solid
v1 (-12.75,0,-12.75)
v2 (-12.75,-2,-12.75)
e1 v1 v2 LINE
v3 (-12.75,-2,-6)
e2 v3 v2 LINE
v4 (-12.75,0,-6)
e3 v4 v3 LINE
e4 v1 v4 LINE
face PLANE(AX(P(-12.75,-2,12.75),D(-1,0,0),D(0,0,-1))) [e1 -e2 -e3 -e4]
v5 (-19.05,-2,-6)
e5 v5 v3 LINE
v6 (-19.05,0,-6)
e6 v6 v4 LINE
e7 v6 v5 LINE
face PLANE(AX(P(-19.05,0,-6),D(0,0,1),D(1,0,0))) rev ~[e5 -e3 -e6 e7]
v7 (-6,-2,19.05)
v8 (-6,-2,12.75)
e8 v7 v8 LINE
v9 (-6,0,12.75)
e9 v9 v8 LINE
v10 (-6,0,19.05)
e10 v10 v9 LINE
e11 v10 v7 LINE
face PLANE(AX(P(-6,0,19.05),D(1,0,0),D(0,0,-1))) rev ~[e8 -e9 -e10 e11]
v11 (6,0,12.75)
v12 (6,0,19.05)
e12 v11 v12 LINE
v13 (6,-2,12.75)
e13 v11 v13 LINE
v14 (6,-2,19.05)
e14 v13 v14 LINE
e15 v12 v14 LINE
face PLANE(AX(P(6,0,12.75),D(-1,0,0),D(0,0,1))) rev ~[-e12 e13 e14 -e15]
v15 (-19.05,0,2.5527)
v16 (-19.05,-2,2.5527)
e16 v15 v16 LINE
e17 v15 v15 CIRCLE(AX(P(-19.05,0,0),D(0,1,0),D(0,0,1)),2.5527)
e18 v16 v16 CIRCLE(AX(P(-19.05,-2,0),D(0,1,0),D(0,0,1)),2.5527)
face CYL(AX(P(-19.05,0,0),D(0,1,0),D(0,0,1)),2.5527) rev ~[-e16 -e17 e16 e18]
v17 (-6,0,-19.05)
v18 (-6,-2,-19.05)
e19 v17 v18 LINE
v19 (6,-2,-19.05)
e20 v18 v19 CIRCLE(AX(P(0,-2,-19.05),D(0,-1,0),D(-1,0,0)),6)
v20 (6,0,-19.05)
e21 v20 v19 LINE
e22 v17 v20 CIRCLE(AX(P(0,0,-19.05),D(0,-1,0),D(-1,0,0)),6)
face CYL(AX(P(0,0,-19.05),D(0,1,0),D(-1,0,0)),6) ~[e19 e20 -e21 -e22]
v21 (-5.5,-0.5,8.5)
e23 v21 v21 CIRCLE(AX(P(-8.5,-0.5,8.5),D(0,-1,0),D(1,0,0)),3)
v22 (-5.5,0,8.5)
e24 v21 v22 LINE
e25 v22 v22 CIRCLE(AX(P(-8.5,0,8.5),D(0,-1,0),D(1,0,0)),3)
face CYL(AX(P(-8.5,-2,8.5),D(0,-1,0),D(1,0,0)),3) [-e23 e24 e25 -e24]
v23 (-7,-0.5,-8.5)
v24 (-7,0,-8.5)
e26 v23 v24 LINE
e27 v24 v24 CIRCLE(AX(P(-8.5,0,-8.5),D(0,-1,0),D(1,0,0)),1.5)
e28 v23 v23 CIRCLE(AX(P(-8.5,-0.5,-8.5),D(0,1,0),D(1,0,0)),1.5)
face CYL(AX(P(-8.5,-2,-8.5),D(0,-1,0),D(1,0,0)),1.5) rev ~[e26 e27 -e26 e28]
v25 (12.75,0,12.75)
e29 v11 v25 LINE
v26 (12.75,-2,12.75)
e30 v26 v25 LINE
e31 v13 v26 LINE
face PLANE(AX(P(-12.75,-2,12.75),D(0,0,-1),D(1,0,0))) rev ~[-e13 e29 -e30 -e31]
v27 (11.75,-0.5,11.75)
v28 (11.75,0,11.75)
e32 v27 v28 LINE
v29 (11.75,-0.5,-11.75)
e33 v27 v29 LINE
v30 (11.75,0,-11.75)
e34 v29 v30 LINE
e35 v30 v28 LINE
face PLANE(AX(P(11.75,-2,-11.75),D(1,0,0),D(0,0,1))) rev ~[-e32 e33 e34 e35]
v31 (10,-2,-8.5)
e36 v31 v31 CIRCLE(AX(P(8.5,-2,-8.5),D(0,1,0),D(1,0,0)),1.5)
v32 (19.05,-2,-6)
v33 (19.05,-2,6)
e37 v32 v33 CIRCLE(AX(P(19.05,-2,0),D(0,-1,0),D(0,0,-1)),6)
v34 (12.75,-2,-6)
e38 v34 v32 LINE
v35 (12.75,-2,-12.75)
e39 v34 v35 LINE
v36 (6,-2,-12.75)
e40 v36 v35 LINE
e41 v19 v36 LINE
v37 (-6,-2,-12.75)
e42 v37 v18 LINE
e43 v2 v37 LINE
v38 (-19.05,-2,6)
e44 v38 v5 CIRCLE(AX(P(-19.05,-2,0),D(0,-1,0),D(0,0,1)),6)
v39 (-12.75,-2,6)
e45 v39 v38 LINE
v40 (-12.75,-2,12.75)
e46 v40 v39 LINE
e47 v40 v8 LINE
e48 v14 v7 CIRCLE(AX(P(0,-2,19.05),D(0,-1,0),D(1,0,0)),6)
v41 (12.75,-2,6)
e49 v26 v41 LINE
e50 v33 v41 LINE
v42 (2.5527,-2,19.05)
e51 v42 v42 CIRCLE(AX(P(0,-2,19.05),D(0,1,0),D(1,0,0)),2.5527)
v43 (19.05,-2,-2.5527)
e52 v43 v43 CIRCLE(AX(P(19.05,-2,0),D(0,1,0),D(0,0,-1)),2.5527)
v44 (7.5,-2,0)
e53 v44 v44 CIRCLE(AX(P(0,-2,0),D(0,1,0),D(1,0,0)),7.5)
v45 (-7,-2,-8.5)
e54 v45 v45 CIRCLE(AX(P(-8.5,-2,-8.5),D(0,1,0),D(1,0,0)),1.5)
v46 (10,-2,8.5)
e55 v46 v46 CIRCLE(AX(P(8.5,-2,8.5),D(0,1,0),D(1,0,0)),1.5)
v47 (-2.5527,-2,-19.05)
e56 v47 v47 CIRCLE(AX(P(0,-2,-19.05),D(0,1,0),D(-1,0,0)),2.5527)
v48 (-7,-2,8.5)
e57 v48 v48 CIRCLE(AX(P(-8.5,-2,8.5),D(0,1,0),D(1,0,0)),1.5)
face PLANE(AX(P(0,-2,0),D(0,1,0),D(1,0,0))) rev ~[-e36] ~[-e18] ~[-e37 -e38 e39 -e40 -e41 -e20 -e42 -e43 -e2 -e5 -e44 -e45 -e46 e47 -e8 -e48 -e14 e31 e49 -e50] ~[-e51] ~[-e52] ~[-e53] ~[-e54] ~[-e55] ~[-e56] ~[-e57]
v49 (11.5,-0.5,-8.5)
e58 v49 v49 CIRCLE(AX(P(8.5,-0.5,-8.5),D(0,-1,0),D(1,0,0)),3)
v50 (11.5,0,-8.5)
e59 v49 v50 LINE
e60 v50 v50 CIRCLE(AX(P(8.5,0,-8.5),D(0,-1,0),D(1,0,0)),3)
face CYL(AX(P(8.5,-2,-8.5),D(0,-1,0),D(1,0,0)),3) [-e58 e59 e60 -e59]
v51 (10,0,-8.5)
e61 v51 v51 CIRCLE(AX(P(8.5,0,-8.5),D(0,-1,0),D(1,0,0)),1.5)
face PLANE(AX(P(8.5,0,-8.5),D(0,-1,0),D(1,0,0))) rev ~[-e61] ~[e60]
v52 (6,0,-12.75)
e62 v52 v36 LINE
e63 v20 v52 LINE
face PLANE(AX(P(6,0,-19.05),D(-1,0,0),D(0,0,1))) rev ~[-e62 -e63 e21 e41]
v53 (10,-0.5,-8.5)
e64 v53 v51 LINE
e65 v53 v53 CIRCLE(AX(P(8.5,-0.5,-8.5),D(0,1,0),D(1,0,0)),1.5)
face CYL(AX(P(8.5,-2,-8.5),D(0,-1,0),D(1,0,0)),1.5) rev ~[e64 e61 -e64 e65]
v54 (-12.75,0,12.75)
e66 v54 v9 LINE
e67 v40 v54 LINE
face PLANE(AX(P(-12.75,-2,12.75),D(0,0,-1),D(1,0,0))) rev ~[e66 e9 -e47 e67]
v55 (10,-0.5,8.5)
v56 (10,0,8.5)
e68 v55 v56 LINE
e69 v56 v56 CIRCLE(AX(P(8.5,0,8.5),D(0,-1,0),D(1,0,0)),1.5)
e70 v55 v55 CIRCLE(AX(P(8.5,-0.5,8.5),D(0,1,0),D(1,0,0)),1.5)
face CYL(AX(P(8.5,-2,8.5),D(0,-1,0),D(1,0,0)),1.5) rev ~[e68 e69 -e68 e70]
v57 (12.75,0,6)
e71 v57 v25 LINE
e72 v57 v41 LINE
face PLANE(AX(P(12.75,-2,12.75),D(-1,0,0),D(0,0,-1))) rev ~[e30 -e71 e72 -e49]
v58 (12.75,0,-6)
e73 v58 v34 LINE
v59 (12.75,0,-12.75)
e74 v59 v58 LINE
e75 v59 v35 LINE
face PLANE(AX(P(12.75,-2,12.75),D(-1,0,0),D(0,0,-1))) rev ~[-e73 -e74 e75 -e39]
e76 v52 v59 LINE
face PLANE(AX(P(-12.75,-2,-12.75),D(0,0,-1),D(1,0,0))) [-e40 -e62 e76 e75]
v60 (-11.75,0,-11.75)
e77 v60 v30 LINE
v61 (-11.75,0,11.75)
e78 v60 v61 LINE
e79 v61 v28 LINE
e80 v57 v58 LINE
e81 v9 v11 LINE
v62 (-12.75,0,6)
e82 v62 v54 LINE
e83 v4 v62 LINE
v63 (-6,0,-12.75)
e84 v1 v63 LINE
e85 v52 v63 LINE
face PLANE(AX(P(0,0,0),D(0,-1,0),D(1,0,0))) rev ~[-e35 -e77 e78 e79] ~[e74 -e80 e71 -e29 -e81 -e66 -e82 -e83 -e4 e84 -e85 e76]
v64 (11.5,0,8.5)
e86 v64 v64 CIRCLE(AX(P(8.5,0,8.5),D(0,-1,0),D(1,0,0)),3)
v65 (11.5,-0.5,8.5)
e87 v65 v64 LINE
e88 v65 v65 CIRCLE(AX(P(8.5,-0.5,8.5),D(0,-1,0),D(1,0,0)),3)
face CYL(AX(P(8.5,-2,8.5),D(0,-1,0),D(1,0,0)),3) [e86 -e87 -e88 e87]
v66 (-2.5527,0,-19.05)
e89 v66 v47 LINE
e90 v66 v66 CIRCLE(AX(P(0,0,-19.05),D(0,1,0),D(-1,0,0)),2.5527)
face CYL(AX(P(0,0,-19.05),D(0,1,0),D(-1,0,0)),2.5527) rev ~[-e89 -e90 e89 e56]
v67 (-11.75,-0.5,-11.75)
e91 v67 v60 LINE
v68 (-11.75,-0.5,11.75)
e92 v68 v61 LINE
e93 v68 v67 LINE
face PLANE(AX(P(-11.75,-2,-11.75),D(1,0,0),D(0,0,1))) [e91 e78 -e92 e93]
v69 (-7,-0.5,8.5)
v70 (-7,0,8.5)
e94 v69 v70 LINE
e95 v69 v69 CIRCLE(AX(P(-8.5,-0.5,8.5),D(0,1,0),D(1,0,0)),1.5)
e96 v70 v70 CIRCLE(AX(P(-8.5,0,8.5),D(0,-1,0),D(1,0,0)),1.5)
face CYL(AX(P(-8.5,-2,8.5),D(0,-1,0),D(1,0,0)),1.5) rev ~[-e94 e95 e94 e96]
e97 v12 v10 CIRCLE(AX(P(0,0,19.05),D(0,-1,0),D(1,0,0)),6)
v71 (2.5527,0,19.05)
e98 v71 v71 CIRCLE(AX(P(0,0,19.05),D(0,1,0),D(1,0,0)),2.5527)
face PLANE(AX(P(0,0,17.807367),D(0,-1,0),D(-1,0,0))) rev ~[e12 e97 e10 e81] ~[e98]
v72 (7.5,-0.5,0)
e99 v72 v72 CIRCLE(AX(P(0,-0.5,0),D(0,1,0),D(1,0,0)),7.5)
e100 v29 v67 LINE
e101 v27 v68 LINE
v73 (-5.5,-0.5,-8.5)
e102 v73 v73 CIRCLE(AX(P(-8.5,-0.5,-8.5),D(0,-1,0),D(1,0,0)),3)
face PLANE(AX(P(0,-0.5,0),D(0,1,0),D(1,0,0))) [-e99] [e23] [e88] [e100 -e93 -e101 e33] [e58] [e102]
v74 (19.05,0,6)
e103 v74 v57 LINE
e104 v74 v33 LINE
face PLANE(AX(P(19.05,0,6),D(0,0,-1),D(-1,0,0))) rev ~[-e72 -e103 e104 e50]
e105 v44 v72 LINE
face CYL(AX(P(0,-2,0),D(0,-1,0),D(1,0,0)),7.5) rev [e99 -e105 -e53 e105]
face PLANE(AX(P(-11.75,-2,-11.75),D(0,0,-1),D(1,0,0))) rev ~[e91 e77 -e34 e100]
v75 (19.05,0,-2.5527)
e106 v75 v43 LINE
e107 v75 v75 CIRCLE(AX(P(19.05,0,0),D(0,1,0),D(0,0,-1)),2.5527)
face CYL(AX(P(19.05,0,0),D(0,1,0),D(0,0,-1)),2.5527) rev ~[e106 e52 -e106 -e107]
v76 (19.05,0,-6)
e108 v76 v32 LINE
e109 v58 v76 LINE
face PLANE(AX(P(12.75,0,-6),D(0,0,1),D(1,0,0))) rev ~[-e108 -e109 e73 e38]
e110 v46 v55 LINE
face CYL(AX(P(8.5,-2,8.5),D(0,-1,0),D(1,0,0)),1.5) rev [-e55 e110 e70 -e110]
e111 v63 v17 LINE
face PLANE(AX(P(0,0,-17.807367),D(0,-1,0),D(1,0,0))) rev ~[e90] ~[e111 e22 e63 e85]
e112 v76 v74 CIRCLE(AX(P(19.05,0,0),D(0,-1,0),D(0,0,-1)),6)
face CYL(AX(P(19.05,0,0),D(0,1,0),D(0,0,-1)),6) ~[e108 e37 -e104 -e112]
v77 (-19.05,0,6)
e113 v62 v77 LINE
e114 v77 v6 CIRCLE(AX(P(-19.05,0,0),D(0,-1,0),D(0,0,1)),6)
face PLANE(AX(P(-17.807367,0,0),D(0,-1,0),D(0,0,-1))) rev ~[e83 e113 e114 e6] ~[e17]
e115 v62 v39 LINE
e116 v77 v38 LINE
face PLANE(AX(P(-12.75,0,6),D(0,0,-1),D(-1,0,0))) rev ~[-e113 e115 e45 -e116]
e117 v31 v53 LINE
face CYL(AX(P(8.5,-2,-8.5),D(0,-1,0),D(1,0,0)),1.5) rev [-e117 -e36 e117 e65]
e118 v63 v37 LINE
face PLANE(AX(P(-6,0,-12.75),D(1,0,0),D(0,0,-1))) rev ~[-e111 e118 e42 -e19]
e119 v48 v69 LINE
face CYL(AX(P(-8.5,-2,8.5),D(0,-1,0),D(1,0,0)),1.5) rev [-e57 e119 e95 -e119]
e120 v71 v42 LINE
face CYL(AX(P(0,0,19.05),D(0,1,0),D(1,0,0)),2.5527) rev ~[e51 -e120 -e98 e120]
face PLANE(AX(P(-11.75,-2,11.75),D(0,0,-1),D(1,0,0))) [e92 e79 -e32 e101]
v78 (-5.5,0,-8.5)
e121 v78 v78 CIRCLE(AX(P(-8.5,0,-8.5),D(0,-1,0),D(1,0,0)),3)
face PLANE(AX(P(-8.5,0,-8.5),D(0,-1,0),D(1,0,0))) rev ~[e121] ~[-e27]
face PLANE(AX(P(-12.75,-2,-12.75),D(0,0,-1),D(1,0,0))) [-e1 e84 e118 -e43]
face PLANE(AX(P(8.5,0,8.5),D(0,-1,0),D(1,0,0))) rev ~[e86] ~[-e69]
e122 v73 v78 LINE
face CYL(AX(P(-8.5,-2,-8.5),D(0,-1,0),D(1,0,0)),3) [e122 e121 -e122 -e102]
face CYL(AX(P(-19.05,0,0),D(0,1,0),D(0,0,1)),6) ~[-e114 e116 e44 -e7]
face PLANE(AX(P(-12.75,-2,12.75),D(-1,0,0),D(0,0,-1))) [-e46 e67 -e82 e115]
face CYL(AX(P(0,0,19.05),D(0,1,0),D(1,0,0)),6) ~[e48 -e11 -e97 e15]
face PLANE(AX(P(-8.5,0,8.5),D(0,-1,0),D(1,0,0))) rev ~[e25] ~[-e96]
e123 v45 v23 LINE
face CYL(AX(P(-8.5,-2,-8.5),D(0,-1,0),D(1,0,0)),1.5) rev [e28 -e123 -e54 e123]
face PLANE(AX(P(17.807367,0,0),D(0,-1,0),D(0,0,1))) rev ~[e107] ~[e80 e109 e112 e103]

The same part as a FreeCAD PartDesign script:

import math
import FreeCAD as App
import Part
import Sketcher


def edges_at(feature, points):
    """Names of the edges that pass closest to the given points."""
    edges = feature.Shape.Edges
    near = lambda p: min(range(len(edges)), key=lambda i: edges[i].distToShape(Part.Vertex(*p))[0])
    return sorted({f"Edge{near(p) + 1}" for p in points})

doc = App.newDocument("Part")
body = doc.addObject("PartDesign::Body", "Body")

sketch1 = doc.addObject("Sketcher::SketchObject", "Sketch")
body.addObject(sketch1)
sketch1.AttachmentSupport = (doc.XZ_Plane, [""])
sketch1.MapMode = "FlatFace"
sketch1.addGeometry([
    Part.LineSegment(App.Vector(-11.5, -11.5, 0), App.Vector(-11.5, 11.5, 0)),
    Part.LineSegment(App.Vector(-11.5, 11.5, 0), App.Vector(11.5, 11.5, 0)),
    Part.LineSegment(App.Vector(11.5, 11.5, 0), App.Vector(11.5, -11.5, 0)),
    Part.LineSegment(App.Vector(11.5, -11.5, 0), App.Vector(-11.5, -11.5, 0)),
    Part.Circle(App.Vector(-8.5, 8.5, 0), App.Vector(0, 0, 1), 1.5),
    Part.Circle(App.Vector(8.5, 8.5, 0), App.Vector(0, 0, 1), 1.5),
    Part.Circle(App.Vector(-8.5, -8.5, 0), App.Vector(0, 0, 1), 1.5),
    Part.Circle(App.Vector(8.5, -8.5, 0), App.Vector(0, 0, 1), 1.5),
], False)
sketch1.addConstraint([
    Sketcher.Constraint("Coincident", 0, 2, 1, 1),
    Sketcher.Constraint("Coincident", 1, 2, 2, 1),
    Sketcher.Constraint("Coincident", 2, 2, 3, 1),
    Sketcher.Constraint("Coincident", 3, 2, 0, 1),
    Sketcher.Constraint("Vertical", 0),
    Sketcher.Constraint("Horizontal", 1),
    Sketcher.Constraint("Vertical", 2),
    Sketcher.Constraint("Horizontal", 3),
    Sketcher.Constraint("Equal", 4, 5),
    Sketcher.Constraint("Equal", 5, 6),
    Sketcher.Constraint("Equal", 6, 7),
    Sketcher.Constraint("Symmetric", 5, 3, 6, 3, -1, 1),
    Sketcher.Constraint("Symmetric", 4, 3, 7, 3, -1, 1),
    Sketcher.Constraint("Symmetric", 0, 2, 2, 2, -1, 1),
    Sketcher.Constraint("Symmetric", 4, 3, 5, 3, -2),
    Sketcher.Constraint("Equal", 3, 0),
    Sketcher.Constraint("Diameter", 4, 3.0),
    Sketcher.Constraint("DistanceX", 1, 1, 1, 2, 23.0),
    Sketcher.Constraint("DistanceX", 4, 3, 5, 3, 17.0),
    Sketcher.Constraint("DistanceY", 6, 3, 4, 3, 17.0),
])
pad1 = doc.addObject("PartDesign::Pad", "Pad")
body.addObject(pad1)
pad1.Profile = sketch1
pad1.Length = 1
pad1.Reversed = True

sketch2 = doc.addObject("Sketcher::SketchObject", "Sketch001")
body.addObject(sketch2)
sketch2.AttachmentSupport = (doc.XZ_Plane, [""])
sketch2.MapMode = "FlatFace"
sketch2.AttachmentOffset = App.Placement(App.Vector(0, 0, -1), App.Rotation())
sketch2.addGeometry([
    Part.LineSegment(App.Vector(-3, -2, 0), App.Vector(-3, 2, 0)),
    Part.LineSegment(App.Vector(-3, 2, 0), App.Vector(3, 2, 0)),
    Part.LineSegment(App.Vector(3, 2, 0), App.Vector(3, -2, 0)),
    Part.LineSegment(App.Vector(3, -2, 0), App.Vector(-3, -2, 0)),
], False)
sketch2.addConstraint([
    Sketcher.Constraint("Coincident", 0, 2, 1, 1),
    Sketcher.Constraint("Coincident", 1, 2, 2, 1),
    Sketcher.Constraint("Coincident", 2, 2, 3, 1),
    Sketcher.Constraint("Coincident", 3, 2, 0, 1),
    Sketcher.Constraint("Vertical", 0),
    Sketcher.Constraint("Horizontal", 1),
    Sketcher.Constraint("Vertical", 2),
    Sketcher.Constraint("Horizontal", 3),
    Sketcher.Constraint("Symmetric", 0, 2, 2, 2, -1, 1),
    Sketcher.Constraint("DistanceX", 1, 1, 1, 2, 6.0),
    Sketcher.Constraint("DistanceY", 0, 1, 0, 2, 5.0),
])
pad2 = doc.addObject("PartDesign::Pad", "Pad001")
body.addObject(pad2)
pad2.Profile = sketch2
pad2.Length = 1
pad2.Reversed = True
doc.recompute()

fillet = doc.addObject("PartDesign::Fillet", "Fillet")
body.addObject(fillet)
fillet.Base = (pad2, edges_at(pad2, [
    (11.5, 0.5, 11.5),
    (-11.5, 0.5, 11.5),
    (-11.5, 0.5, -11.5),
    (11.5, 0.5, -11.5),
]))
fillet.Radius = 3
body2 = doc.addObject("PartDesign::Body", "Body001")

sketch3 = doc.addObject("Sketcher::SketchObject", "Sketch002")
body2.addObject(sketch3)
sketch3.AttachmentSupport = (doc.getObject("XZ_Plane001"), [""])
sketch3.MapMode = "FlatFace"
sketch3.AttachmentOffset = App.Placement(App.Vector(0, 0, 2), App.Rotation())
sketch3.addGeometry([
    Part.LineSegment(App.Vector(-12.8, -12.8, 0), App.Vector(-12.8, 12.8, 0)),
    Part.LineSegment(App.Vector(-12.8, 12.8, 0), App.Vector(12.8, 12.8, 0)),
    Part.LineSegment(App.Vector(12.8, 12.8, 0), App.Vector(12.8, -12.8, 0)),
    Part.LineSegment(App.Vector(12.8, -12.8, 0), App.Vector(-12.8, -12.8, 0)),
    Part.Circle(App.Vector(-8.5, 8.5, 0), App.Vector(0, 0, 1), 1.5),
    Part.Circle(App.Vector(8.5, 8.5, 0), App.Vector(0, 0, 1), 1.5),
    Part.Circle(App.Vector(-8.5, -8.5, 0), App.Vector(0, 0, 1), 1.5),
    Part.Circle(App.Vector(0, 0, 0), App.Vector(0, 0, 1), 7.5),
    Part.Circle(App.Vector(8.5, -8.5, 0), App.Vector(0, 0, 1), 1.5),
], False)
sketch3.addConstraint([
    Sketcher.Constraint("Coincident", 0, 2, 1, 1),
    Sketcher.Constraint("Coincident", 1, 2, 2, 1),
    Sketcher.Constraint("Coincident", 2, 2, 3, 1),
    Sketcher.Constraint("Coincident", 3, 2, 0, 1),
    Sketcher.Constraint("Vertical", 0),
    Sketcher.Constraint("Horizontal", 1),
    Sketcher.Constraint("Vertical", 2),
    Sketcher.Constraint("Horizontal", 3),
    Sketcher.Constraint("Coincident", 7, 3, -1, 1),
    Sketcher.Constraint("Equal", 4, 5),
    Sketcher.Constraint("Equal", 5, 6),
    Sketcher.Constraint("Equal", 6, 8),
    Sketcher.Constraint("Symmetric", 5, 3, 6, 3, -1, 1),
    Sketcher.Constraint("Symmetric", 4, 3, 8, 3, -1, 1),
    Sketcher.Constraint("Symmetric", 0, 2, 2, 2, -1, 1),
    Sketcher.Constraint("Symmetric", 4, 3, 5, 3, -2),
    Sketcher.Constraint("Equal", 3, 0),
    Sketcher.Constraint("Diameter", 4, 3.0),
    Sketcher.Constraint("Diameter", 7, 15.0),
    Sketcher.Constraint("DistanceX", 1, 1, 1, 2, 25.5),
    Sketcher.Constraint("DistanceX", 4, 3, 5, 3, 17.0),
    Sketcher.Constraint("DistanceY", 6, 3, 4, 3, 17.0),
])
pad3 = doc.addObject("PartDesign::Pad", "Pad002")
body2.addObject(pad3)
pad3.Profile = sketch3
pad3.Length = 1.5
pad3.Reversed = True

sketch4 = doc.addObject("Sketcher::SketchObject", "Sketch003")
body2.addObject(sketch4)
sketch4.AttachmentSupport = (doc.getObject("XZ_Plane001"), [""])
sketch4.MapMode = "FlatFace"
sketch4.AttachmentOffset = App.Placement(App.Vector(0, 0, 2), App.Rotation())
sketch4.addGeometry([
    Part.Circle(App.Vector(-8.5, 8.5, 0), App.Vector(0, 0, 1), 3),
    Part.Circle(App.Vector(-8.5, 8.5, 0), App.Vector(0, 0, 1), 1.5),
    Part.Circle(App.Vector(8.5, 8.5, 0), App.Vector(0, 0, 1), 3),
    Part.Circle(App.Vector(8.5, 8.5, 0), App.Vector(0, 0, 1), 1.5),
    Part.Circle(App.Vector(8.5, -8.5, 0), App.Vector(0, 0, 1), 3),
    Part.Circle(App.Vector(8.5, -8.5, 0), App.Vector(0, 0, 1), 1.5),
    Part.Circle(App.Vector(-8.5, -8.5, 0), App.Vector(0, 0, 1), 3),
    Part.Circle(App.Vector(-8.5, -8.5, 0), App.Vector(0, 0, 1), 1.5),
], False)
sketch4.addConstraint([
    Sketcher.Constraint("Coincident", 1, 3, 0, 3),
    Sketcher.Constraint("Coincident", 3, 3, 2, 3),
    Sketcher.Constraint("Coincident", 5, 3, 4, 3),
    Sketcher.Constraint("Coincident", 7, 3, 6, 3),
    Sketcher.Constraint("Equal", 0, 2),
    Sketcher.Constraint("Equal", 1, 3),
    Sketcher.Constraint("Equal", 2, 4),
    Sketcher.Constraint("Equal", 3, 5),
    Sketcher.Constraint("Equal", 4, 6),
    Sketcher.Constraint("Equal", 5, 7),
    Sketcher.Constraint("Symmetric", 0, 3, 4, 3, -1, 1),
    Sketcher.Constraint("Symmetric", 2, 3, 6, 3, -1, 1),
    Sketcher.Constraint("Symmetric", 0, 3, 2, 3, -2),
    Sketcher.Constraint("Diameter", 0, 6.0),
    Sketcher.Constraint("Diameter", 1, 3.0),
    Sketcher.Constraint("DistanceX", 0, 3, 2, 3, 17.0),
    Sketcher.Constraint("DistanceY", 4, 3, 2, 3, 17.0),
])
pad4 = doc.addObject("PartDesign::Pad", "Pad003")
body2.addObject(pad4)
pad4.Profile = sketch4
pad4.Length = 2
pad4.Reversed = True

sketch5 = doc.addObject("Sketcher::SketchObject", "Sketch004")
body2.addObject(sketch5)
sketch5.AttachmentSupport = (doc.getObject("XZ_Plane001"), [""])
sketch5.MapMode = "FlatFace"
sketch5.AttachmentOffset = App.Placement(App.Vector(0, 0, 2), App.Rotation())
sketch5.addGeometry([
    Part.LineSegment(App.Vector(-13, 13, 0), App.Vector(-13, -13, 0)),
    Part.LineSegment(App.Vector(-13, -13, 0), App.Vector(13, -13, 0)),
    Part.LineSegment(App.Vector(13, -13, 0), App.Vector(13, 13, 0)),
    Part.LineSegment(App.Vector(13, 13, 0), App.Vector(-13, 13, 0)),
    Part.LineSegment(App.Vector(12, -12, 0), App.Vector(-12, -12, 0)),
    Part.LineSegment(App.Vector(-12, -12, 0), App.Vector(-12, 12, 0)),
    Part.LineSegment(App.Vector(-12, 12, 0), App.Vector(12, 12, 0)),
    Part.LineSegment(App.Vector(12, 12, 0), App.Vector(12, -12, 0)),
], False)
sketch5.addConstraint([
    Sketcher.Constraint("Coincident", 0, 2, 1, 1),
    Sketcher.Constraint("Coincident", 1, 2, 2, 1),
    Sketcher.Constraint("Coincident", 2, 2, 3, 1),
    Sketcher.Constraint("Coincident", 3, 2, 0, 1),
    Sketcher.Constraint("Coincident", 4, 2, 5, 1),
    Sketcher.Constraint("Coincident", 5, 2, 6, 1),
    Sketcher.Constraint("Coincident", 6, 2, 7, 1),
    Sketcher.Constraint("Coincident", 7, 2, 4, 1),
    Sketcher.Constraint("Vertical", 0),
    Sketcher.Constraint("Horizontal", 1),
    Sketcher.Constraint("Vertical", 2),
    Sketcher.Constraint("Horizontal", 3),
    Sketcher.Constraint("Horizontal", 4),
    Sketcher.Constraint("Vertical", 5),
    Sketcher.Constraint("Horizontal", 6),
    Sketcher.Constraint("Vertical", 7),
    Sketcher.Constraint("Symmetric", 0, 2, 2, 2, -1, 1),
    Sketcher.Constraint("Symmetric", 4, 2, 6, 2, -1, 1),
    Sketcher.Constraint("Equal", 3, 0),
    Sketcher.Constraint("Equal", 6, 5),
    Sketcher.Constraint("DistanceX", 1, 1, 1, 2, 25.5),
    Sketcher.Constraint("DistanceX", 4, 2, 4, 1, 23.5),
])
pad5 = doc.addObject("PartDesign::Pad", "Pad004")
body2.addObject(pad5)
pad5.Profile = sketch5
pad5.Length = 2
pad5.Reversed = True

sketch6 = doc.addObject("Sketcher::SketchObject", "Sketch005")
body2.addObject(sketch6)
sketch6.AttachmentSupport = (doc.getObject("XZ_Plane001"), [""])
sketch6.MapMode = "FlatFace"
sketch6.addGeometry([
    Part.LineSegment(App.Vector(6, -12.8, 0), App.Vector(6, -19.1, 0)),
    Part.ArcOfCircle(Part.Circle(App.Vector(0, -19.1, 0), App.Vector(0, 0, 1), 6), math.radians(180), math.radians(360)),
    Part.LineSegment(App.Vector(-6, -19.1, 0), App.Vector(-6, -12.8, 0)),
    Part.LineSegment(App.Vector(-6, -12.8, 0), App.Vector(6, -12.8, 0)),
    Part.Circle(App.Vector(0, -19.1, 0), App.Vector(0, 0, 1), 2.6),
], False)
sketch6.addConstraint([
    Sketcher.Constraint("Tangent", 0, 2, 1, 2),
    Sketcher.Constraint("Tangent", 1, 1, 2, 1),
    Sketcher.Constraint("Coincident", 2, 2, 3, 1),
    Sketcher.Constraint("Coincident", 3, 2, 0, 1),
    Sketcher.Constraint("Vertical", 0),
    Sketcher.Constraint("Vertical", 2),
    Sketcher.Constraint("Horizontal", 3),
    Sketcher.Constraint("Coincident", 4, 3, 1, 3),
    Sketcher.Constraint("PointOnObject", 1, 3, -2),
    Sketcher.Constraint("Radius", 1, 6.0),
    Sketcher.Constraint("DistanceY", 0, 2, 0, 1, 6.3),
    Sketcher.Constraint("Diameter", 4, 5.1054),
    Sketcher.Constraint("DistanceY", 1, 3, -1, 1, 19.05),
])
pad6 = doc.addObject("PartDesign::Pad", "Pad005")
body2.addObject(pad6)
pad6.Profile = sketch6
pad6.Length = 2
doc.recompute()

polarpattern = doc.addObject("PartDesign::PolarPattern", "PolarPattern")
body2.addObject(polarpattern)
polarpattern.Originals = [pad6]
polarpattern.Axis = (doc.getObject("Y_Axis001"), [""])
polarpattern.Angle = 360
polarpattern.Occurrences = 4
body2.Tip = polarpattern
body.Visibility = False

doc.recompute()
